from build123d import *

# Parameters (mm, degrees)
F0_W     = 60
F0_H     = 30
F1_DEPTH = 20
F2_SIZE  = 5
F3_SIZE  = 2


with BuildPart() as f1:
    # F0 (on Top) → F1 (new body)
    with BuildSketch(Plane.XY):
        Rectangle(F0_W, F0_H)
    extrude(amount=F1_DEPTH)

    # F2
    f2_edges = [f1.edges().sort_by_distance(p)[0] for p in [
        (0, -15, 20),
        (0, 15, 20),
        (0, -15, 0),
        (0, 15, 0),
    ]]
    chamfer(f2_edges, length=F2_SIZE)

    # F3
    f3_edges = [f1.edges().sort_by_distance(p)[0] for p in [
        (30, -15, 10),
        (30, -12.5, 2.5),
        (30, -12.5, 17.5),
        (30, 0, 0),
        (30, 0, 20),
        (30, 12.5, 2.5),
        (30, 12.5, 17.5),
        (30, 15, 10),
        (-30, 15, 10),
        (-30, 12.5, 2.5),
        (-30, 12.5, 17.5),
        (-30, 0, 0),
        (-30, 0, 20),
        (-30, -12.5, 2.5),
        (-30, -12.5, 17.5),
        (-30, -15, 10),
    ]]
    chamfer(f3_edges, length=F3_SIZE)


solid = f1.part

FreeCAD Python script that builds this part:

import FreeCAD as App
import Part
import Sketcher
from FreeCAD import Vector


def edges_at(feature, points):
    """Names of the edges that pass closest to the given points."""
    edges = feature.Shape.Edges
    near = lambda p: min(range(len(edges)), key=lambda i: edges[i].distToShape(Part.Vertex(*p))[0])
    return sorted({f"Edge{near(p) + 1}" for p in points})

doc = App.newDocument("Part")
body = doc.addObject("PartDesign::Body", "Body")

# Sketch on XY plane
sketch1 = body.newObject("Sketcher::SketchObject", "Sketch")
sketch1.AttachmentSupport = (doc.getObject("XY_Plane"), [""])
sketch1.MapMode = "FlatFace"
sketch1.addGeometry(Part.LineSegment(Vector(-30, 15, 0), Vector(-30, -15, 0)), False)
sketch1.addGeometry(Part.LineSegment(Vector(-30, -15, 0), Vector(30, -15, 0)), False)
sketch1.addGeometry(Part.LineSegment(Vector(30, -15, 0), Vector(30, 15, 0)), False)
sketch1.addGeometry(Part.LineSegment(Vector(30, 15, 0), Vector(-30, 15, 0)), False)
sketch1.addConstraint(Sketcher.Constraint("Coincident", 0, 2, 1, 1))
sketch1.addConstraint(Sketcher.Constraint("Coincident", 1, 2, 2, 1))
sketch1.addConstraint(Sketcher.Constraint("Coincident", 2, 2, 3, 1))
sketch1.addConstraint(Sketcher.Constraint("Coincident", 3, 2, 0, 1))
sketch1.addConstraint(Sketcher.Constraint("Vertical", 0))
sketch1.addConstraint(Sketcher.Constraint("Horizontal", 1))
sketch1.addConstraint(Sketcher.Constraint("Vertical", 2))
sketch1.addConstraint(Sketcher.Constraint("Horizontal", 3))
sketch1.addConstraint(Sketcher.Constraint("Symmetric", 0, 2, 2, 2, -1, 1))
sketch1.addConstraint(Sketcher.Constraint("DistanceX", 1, 1, 1, 2, 60.0))
sketch1.addConstraint(Sketcher.Constraint("DistanceY", 0, 2, 0, 1, 30.0))
pad1 = body.newObject("PartDesign::Pad", "Pad")
pad1.Profile = sketch1
pad1.Length = 20
doc.recompute()

chamfer = body.newObject("PartDesign::Chamfer", "Chamfer")
chamfer.Base = (pad1, edges_at(pad1, [
    (0, -15, 20),
    (0, 15, 20),
    (0, -15, 0),
    (0, 15, 0),
]))
chamfer.Size = 5
doc.recompute()

chamfer2 = body.newObject("PartDesign::Chamfer", "Chamfer001")
chamfer2.Base = (chamfer, edges_at(chamfer, [
    (30, -15, 10),
    (30, -12.5, 2.5),
    (30, -12.5, 17.5),
    (30, 0, 0),
    (30, 0, 20),
    (30, 12.5, 2.5),
    (30, 12.5, 17.5),
    (30, 15, 10),
    (-30, 15, 10),
    (-30, 12.5, 2.5),
    (-30, 12.5, 17.5),
    (-30, 0, 0),
    (-30, 0, 20),
    (-30, -12.5, 2.5),
    (-30, -12.5, 17.5),
    (-30, -15, 10),
]))
chamfer2.Size = 2

doc.recompute()
